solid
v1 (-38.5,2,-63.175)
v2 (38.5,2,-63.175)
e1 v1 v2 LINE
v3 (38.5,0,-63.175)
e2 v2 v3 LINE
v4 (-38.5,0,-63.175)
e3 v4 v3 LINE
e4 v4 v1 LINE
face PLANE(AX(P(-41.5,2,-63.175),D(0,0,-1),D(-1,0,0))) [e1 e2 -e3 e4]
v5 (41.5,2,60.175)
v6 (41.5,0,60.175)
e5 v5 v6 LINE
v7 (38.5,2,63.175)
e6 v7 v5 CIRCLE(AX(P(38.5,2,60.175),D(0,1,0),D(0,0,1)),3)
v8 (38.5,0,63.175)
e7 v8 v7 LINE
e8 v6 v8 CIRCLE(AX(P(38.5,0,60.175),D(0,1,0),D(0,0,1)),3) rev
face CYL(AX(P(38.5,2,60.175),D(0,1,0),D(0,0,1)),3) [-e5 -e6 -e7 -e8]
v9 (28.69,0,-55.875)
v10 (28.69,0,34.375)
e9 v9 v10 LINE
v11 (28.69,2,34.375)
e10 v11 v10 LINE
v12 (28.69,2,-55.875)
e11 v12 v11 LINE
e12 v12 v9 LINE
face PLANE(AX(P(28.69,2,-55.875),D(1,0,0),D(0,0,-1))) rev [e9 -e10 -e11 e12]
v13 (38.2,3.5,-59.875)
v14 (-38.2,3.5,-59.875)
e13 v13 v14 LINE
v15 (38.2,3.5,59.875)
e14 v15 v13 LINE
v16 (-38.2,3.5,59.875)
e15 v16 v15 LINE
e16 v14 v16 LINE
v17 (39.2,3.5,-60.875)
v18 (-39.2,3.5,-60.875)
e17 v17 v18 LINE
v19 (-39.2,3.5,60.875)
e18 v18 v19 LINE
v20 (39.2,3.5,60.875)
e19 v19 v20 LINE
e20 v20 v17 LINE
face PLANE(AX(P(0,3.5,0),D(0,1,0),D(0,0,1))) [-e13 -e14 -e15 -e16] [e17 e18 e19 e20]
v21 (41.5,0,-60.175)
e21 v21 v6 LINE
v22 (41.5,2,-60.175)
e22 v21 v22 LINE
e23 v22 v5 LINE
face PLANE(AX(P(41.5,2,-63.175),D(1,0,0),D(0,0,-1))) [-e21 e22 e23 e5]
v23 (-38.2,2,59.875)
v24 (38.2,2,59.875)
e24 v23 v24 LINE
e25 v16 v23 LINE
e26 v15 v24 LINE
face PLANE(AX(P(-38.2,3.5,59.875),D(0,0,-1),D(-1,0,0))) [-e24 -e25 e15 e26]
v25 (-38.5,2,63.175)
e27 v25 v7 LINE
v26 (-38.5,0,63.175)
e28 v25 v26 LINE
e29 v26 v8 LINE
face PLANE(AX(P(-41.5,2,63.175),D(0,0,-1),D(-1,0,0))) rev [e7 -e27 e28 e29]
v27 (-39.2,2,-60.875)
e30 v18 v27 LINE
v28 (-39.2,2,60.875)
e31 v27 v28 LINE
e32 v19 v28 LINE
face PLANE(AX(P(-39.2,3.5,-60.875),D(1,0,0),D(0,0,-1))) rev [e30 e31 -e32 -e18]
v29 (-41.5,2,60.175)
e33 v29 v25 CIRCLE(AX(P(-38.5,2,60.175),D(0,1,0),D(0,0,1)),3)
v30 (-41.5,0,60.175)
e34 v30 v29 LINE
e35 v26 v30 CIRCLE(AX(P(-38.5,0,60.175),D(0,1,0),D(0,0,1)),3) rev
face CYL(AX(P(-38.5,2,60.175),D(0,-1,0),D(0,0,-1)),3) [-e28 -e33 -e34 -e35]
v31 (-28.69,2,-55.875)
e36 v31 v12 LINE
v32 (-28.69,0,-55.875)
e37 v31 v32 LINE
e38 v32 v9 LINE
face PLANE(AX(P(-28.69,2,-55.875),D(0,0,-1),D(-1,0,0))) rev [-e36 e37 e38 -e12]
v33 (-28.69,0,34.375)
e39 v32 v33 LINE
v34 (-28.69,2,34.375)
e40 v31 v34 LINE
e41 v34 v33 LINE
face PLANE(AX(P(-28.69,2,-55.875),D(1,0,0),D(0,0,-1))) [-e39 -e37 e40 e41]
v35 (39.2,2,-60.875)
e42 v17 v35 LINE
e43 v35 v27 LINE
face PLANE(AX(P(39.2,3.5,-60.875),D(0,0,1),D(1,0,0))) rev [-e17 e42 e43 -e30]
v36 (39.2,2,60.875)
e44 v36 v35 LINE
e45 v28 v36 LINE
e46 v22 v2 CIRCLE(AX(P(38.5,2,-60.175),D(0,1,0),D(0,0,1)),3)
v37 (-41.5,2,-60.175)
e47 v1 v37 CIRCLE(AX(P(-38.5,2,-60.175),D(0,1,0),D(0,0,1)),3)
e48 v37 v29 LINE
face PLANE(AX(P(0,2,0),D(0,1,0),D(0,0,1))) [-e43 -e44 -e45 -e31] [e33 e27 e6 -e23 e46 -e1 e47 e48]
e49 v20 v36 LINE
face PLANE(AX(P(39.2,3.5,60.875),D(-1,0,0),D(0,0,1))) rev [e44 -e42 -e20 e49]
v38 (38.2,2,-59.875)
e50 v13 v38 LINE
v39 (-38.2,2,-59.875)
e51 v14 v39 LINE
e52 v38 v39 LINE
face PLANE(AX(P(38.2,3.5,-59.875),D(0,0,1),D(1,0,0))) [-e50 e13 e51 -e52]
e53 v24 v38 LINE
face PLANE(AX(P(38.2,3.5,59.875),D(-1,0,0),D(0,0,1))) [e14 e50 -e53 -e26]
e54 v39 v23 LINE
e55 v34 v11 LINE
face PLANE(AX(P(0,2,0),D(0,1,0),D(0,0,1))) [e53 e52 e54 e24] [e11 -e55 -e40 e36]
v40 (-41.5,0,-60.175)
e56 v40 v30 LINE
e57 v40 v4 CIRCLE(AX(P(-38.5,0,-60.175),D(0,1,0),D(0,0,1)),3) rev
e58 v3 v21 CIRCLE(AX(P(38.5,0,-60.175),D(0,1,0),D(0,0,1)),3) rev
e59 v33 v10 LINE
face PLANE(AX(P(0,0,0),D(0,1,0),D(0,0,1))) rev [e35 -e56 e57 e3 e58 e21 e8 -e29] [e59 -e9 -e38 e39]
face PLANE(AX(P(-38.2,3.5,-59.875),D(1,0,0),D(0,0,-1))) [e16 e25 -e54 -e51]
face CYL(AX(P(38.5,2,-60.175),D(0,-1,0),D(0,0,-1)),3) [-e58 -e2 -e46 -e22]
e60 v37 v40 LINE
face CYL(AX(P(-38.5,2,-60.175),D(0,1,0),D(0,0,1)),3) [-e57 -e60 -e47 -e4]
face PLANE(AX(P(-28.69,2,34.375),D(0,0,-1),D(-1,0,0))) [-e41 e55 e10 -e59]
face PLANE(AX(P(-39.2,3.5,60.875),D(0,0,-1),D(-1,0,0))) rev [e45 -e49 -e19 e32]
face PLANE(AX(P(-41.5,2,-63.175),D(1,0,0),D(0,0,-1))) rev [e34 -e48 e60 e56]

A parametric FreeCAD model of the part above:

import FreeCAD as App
import Part
import Sketcher
from FreeCAD import Vector


def edges_at(feature, points):
    """Names of the edges that pass closest to the given points."""
    edges = feature.Shape.Edges
    near = lambda p: min(range(len(edges)), key=lambda i: edges[i].distToShape(Part.Vertex(*p))[0])
    return sorted({f"Edge{near(p) + 1}" for p in points})

doc = App.newDocument("Part")
body = doc.addObject("PartDesign::Body", "Body")

# Sketch on XZ plane
sketch1 = body.newObject("Sketcher::SketchObject", "Sketch")
sketch1.AttachmentSupport = (doc.getObject("XZ_Plane"), [""])
sketch1.MapMode = "FlatFace"
sketch1.addGeometry([
    Part.LineSegment(Vector(-41.5, -63.175, 0), Vector(-41.5, 63.175, 0)),  # 0
    Part.LineSegment(Vector(-41.5, 63.175, 0), Vector(41.5, 63.175, 0)),  # 1
    Part.LineSegment(Vector(41.5, 63.175, 0), Vector(41.5, -63.175, 0)),  # 2
    Part.LineSegment(Vector(41.5, -63.175, 0), Vector(-41.5, -63.175, 0)),  # 3
    Part.LineSegment(Vector(28.69, 34.375, 0), Vector(-28.69, 34.375, 0)),  # 4
    Part.LineSegment(Vector(-28.69, 34.375, 0), Vector(-28.69, -55.875, 0)),  # 5
    Part.LineSegment(Vector(-28.69, -55.875, 0), Vector(28.69, -55.875, 0)),  # 6
    Part.LineSegment(Vector(28.69, -55.875, 0), Vector(28.69, 34.375, 0)),  # 7
], False)
sketch1.addConstraint([
    Sketcher.Constraint("Coincident", 0, 2, 1, 1),
    Sketcher.Constraint("Coincident", 1, 2, 2, 1),
    Sketcher.Constraint("Coincident", 2, 2, 3, 1),
    Sketcher.Constraint("Coincident", 3, 2, 0, 1),
    Sketcher.Constraint("Coincident", 4, 2, 5, 1),
    Sketcher.Constraint("Coincident", 5, 2, 6, 1),
    Sketcher.Constraint("Coincident", 6, 2, 7, 1),
    Sketcher.Constraint("Coincident", 7, 2, 4, 1),
    Sketcher.Constraint("Vertical", 0),
    Sketcher.Constraint("Horizontal", 1),
    Sketcher.Constraint("Vertical", 2),
    Sketcher.Constraint("Horizontal", 3),
    Sketcher.Constraint("Horizontal", 4),
    Sketcher.Constraint("Vertical", 5),
    Sketcher.Constraint("Horizontal", 6),
    Sketcher.Constraint("Vertical", 7),
    Sketcher.Constraint("Symmetric", 0, 2, 2, 2, -1, 1),
    Sketcher.Constraint("DistanceX", 1, 1, 1, 2, 83.0),
    Sketcher.Constraint("DistanceX", 4, 2, 4, 1, 57.38),
    Sketcher.Constraint("DistanceY", 0, 1, 0, 2, 126.35),
    Sketcher.Constraint("DistanceY", 5, 2, 5, 1, 90.25),
    Sketcher.Constraint("DistanceY", 4, 2, 0, 2, 28.8),
    Sketcher.Constraint("DistanceX", 4, 2, -1, 1, 28.69),
])
pad1 = body.newObject("PartDesign::Pad", "Pad")
pad1.Profile = sketch1
pad1.Length = 2
pad1.Reversed = True

# Sketch on XZ plane
sketch2 = body.newObject("Sketcher::SketchObject", "Sketch001")
sketch2.AttachmentSupport = (doc.getObject("XZ_Plane"), [""])
sketch2.MapMode = "FlatFace"
sketch2.AttachmentOffset = App.Placement(Vector(0, 0, -2), App.Rotation())
sketch2.addGeometry([
    Part.LineSegment(Vector(-39.2, -60.875, 0), Vector(-39.2, 60.875, 0)),  # 0
    Part.LineSegment(Vector(-39.2, 60.875, 0), Vector(39.2, 60.875, 0)),  # 1
    Part.LineSegment(Vector(39.2, 60.875, 0), Vector(39.2, -60.875, 0)),  # 2
    Part.LineSegment(Vector(39.2, -60.875, 0), Vector(-39.2, -60.875, 0)),  # 3
    Part.LineSegment(Vector(38.2, 59.875, 0), Vector(-38.2, 59.875, 0)),  # 4
    Part.LineSegment(Vector(-38.2, 59.875, 0), Vector(-38.2, -59.875, 0)),  # 5
    Part.LineSegment(Vector(-38.2, -59.875, 0), Vector(38.2, -59.875, 0)),  # 6
    Part.LineSegment(Vector(38.2, -59.875, 0), Vector(38.2, 59.875, 0)),  # 7
], False)
sketch2.addConstraint([
    Sketcher.Constraint("Coincident", 0, 2, 1, 1),
    Sketcher.Constraint("Coincident", 1, 2, 2, 1),
    Sketcher.Constraint("Coincident", 2, 2, 3, 1),
    Sketcher.Constraint("Coincident", 3, 2, 0, 1),
    Sketcher.Constraint("Coincident", 4, 2, 5, 1),
    Sketcher.Constraint("Coincident", 5, 2, 6, 1),
    Sketcher.Constraint("Coincident", 6, 2, 7, 1),
    Sketcher.Constraint("Coincident", 7, 2, 4, 1),
    Sketcher.Constraint("Vertical", 0),
    Sketcher.Constraint("Horizontal", 1),
    Sketcher.Constraint("Vertical", 2),
    Sketcher.Constraint("Horizontal", 3),
    Sketcher.Constraint("Horizontal", 4),
    Sketcher.Constraint("Vertical", 5),
    Sketcher.Constraint("Horizontal", 6),
    Sketcher.Constraint("Vertical", 7),
    Sketcher.Constraint("Symmetric", 0, 2, 2, 2, -1, 1),
    Sketcher.Constraint("Symmetric", 4, 2, 6, 2, -1, 1),
    Sketcher.Constraint("DistanceX", 1, 1, 1, 2, 78.4),
    Sketcher.Constraint("DistanceX", 4, 2, 4, 1, 76.4),
    Sketcher.Constraint("DistanceY", 4, 2, 0, 2, 1.0),
    Sketcher.Constraint("DistanceY", 0, 1, 0, 2, 121.75),
])
pad2 = body.newObject("PartDesign::Pad", "Pad001")
pad2.Profile = sketch2
pad2.Length = 1.5
pad2.Reversed = True
doc.recompute()

fillet = body.newObject("PartDesign::Fillet", "Fillet")
fillet.Base = (pad2, edges_at(pad2, [
    (-41.5, 1, -63.175),
    (41.5, 1, -63.175),
    (41.5, 1, 63.175),
    (-41.5, 1, 63.175),
]))
fillet.Radius = 3

doc.recompute()
